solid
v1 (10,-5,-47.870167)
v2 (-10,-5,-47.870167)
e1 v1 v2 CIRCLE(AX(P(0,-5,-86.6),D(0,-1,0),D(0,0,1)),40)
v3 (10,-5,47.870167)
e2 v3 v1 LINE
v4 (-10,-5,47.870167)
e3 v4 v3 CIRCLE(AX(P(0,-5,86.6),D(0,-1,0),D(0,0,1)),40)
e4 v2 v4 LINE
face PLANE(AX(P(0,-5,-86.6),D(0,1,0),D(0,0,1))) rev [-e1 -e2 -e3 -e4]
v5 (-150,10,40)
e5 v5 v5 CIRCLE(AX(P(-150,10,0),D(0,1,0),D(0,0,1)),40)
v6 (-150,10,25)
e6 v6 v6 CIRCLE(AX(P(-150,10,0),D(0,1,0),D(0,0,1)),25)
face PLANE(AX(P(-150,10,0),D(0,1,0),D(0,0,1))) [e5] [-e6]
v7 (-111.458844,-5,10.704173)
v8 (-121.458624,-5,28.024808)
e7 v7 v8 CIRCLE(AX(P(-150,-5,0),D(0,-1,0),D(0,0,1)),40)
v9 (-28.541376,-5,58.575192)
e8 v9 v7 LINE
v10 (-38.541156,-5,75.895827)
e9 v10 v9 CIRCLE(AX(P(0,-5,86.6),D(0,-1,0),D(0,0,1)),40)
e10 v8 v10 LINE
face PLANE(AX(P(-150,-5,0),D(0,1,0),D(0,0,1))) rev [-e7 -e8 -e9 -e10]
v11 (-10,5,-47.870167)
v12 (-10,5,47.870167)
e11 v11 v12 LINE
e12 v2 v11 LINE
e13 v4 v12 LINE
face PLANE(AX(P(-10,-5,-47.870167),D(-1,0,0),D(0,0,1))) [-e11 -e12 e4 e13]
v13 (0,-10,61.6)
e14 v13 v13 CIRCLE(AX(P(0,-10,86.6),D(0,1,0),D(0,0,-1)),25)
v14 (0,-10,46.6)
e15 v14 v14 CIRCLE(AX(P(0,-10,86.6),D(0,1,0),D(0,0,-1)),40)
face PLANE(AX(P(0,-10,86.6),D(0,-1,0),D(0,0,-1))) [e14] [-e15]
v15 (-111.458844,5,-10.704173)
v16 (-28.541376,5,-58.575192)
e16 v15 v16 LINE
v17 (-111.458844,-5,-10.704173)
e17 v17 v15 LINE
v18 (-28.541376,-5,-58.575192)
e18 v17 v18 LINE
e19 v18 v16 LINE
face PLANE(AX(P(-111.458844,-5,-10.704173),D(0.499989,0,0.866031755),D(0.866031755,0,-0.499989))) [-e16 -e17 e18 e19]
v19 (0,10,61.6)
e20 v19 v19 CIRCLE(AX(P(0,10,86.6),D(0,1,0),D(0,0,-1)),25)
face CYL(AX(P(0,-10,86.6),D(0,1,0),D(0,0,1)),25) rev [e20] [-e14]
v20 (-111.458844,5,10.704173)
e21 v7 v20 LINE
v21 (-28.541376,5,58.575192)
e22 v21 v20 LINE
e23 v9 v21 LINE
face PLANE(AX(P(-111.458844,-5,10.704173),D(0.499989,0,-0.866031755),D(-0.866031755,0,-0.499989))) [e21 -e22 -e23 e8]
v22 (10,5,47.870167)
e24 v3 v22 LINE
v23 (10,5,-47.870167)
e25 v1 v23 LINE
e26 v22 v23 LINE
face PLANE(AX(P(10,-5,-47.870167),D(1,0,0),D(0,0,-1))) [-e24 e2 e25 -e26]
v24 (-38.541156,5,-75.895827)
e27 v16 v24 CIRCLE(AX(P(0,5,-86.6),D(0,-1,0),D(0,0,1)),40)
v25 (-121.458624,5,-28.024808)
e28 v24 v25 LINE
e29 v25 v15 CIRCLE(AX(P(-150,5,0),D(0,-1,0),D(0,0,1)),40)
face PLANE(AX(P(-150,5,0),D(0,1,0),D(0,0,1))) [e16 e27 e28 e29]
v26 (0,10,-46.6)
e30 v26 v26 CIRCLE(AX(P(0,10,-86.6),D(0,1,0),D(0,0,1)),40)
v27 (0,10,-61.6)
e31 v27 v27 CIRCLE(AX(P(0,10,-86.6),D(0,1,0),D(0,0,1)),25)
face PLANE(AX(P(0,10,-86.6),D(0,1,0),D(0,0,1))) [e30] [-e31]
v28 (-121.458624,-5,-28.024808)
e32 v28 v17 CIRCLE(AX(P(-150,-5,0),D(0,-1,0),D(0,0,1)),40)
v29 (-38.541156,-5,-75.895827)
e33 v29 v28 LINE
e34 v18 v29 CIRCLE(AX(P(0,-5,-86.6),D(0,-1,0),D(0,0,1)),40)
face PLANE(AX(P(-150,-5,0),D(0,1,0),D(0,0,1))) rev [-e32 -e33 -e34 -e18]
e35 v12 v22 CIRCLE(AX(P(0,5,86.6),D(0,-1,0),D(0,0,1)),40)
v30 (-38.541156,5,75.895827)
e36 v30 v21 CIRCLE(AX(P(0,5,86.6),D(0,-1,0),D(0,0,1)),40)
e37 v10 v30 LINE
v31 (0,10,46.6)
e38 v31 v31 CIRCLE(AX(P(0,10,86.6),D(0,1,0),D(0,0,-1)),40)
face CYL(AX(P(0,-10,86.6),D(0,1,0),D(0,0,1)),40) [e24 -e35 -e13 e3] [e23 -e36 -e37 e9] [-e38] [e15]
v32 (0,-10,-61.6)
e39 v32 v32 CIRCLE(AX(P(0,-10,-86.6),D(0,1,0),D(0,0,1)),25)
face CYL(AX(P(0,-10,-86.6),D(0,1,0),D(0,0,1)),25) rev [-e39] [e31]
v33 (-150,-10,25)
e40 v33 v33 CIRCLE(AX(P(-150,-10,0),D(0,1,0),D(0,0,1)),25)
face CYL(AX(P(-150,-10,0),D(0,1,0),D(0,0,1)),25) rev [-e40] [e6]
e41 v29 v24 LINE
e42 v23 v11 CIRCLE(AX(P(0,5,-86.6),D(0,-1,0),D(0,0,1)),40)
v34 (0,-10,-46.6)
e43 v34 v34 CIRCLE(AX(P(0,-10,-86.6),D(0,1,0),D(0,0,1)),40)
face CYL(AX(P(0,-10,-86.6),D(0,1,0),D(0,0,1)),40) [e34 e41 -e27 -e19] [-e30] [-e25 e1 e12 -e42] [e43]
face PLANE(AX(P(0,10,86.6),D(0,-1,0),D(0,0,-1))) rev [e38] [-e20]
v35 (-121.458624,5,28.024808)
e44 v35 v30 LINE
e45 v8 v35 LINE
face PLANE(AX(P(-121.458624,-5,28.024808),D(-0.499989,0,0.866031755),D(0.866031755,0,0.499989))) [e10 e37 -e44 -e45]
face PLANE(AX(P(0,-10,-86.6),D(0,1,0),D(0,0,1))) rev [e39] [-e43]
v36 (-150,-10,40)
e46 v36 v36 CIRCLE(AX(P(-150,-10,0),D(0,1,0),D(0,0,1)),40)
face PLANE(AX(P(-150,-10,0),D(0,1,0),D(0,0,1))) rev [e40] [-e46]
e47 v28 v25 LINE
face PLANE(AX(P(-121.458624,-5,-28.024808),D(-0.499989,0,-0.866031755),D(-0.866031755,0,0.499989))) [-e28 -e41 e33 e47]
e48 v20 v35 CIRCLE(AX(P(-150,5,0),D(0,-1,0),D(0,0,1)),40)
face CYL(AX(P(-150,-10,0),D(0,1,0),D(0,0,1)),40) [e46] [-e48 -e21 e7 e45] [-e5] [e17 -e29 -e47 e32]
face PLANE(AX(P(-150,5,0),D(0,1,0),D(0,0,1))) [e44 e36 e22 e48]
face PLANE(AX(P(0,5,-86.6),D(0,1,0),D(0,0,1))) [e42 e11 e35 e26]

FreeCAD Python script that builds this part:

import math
import FreeCAD as App
import Part
import Sketcher

V = App.Vector
Q = App.Units.Quantity

doc = App.newDocument("Part")
body = doc.addObject("PartDesign::Body", "Body")

sketch1 = body.newObject("Sketcher::SketchObject", "Sketch")
sketch1.AttachmentSupport = (doc.getObject("XZ_Plane"), [""])
sketch1.MapMode = "FlatFace"
sketch1.addGeometry(Part.Circle(V(-150, 0, 0), V(0, 0, 1), 40), False)
sketch1.addGeometry(Part.Circle(V(-150, 0, 0), V(0, 0, 1), 25), False)
sketch1.addConstraint(Sketcher.Constraint("Coincident", 1, 3, 0, 3))
sketch1.addConstraint(Sketcher.Constraint("PointOnObject", 0, 3, -1))
sketch1.addConstraint(Sketcher.Constraint("Diameter", 0, Q("80 mm")))
sketch1.addConstraint(Sketcher.Constraint("Diameter", 1, Q("50 mm")))
sketch1.addConstraint(Sketcher.Constraint("DistanceX", 0, 3, -1, 1, Q("150 mm")))
pad1 = body.newObject("PartDesign::Pad", "Pad")
pad1.Profile = sketch1
pad1.Type = "TwoLengths"
pad1.Length = 10
pad1.Length2 = 10
pad1.Reversed = True
body2 = doc.addObject("PartDesign::Body", "Body001")

sketch2 = body2.newObject("Sketcher::SketchObject", "Sketch001")
sketch2.AttachmentSupport = (doc.getObject("XZ_Plane001"), [""])
sketch2.MapMode = "FlatFace"
sketch2.addGeometry(Part.Circle(V(0, -87, 0), V(0, 0, 1), 40), False)
sketch2.addGeometry(Part.Circle(V(0, -87, 0), V(0, 0, 1), 25), False)
sketch2.addConstraint(Sketcher.Constraint("Coincident", 1, 3, 0, 3))
sketch2.addConstraint(Sketcher.Constraint("PointOnObject", 0, 3, -2))
sketch2.addConstraint(Sketcher.Constraint("Diameter", 0, Q("80 mm")))
sketch2.addConstraint(Sketcher.Constraint("Diameter", 1, Q("50 mm")))
sketch2.addConstraint(Sketcher.Constraint("DistanceY", 0, 3, -1, 1, Q("86.6 mm")))
pad2 = body2.newObject("PartDesign::Pad", "Pad001")
pad2.Profile = sketch2
pad2.Type = "TwoLengths"
pad2.Length = 10
pad2.Length2 = 10
pad2.Reversed = True
body3 = doc.addObject("PartDesign::Body", "Body002")

sketch3 = body3.newObject("Sketcher::SketchObject", "Sketch002")
sketch3.AttachmentSupport = (doc.getObject("XZ_Plane002"), [""])
sketch3.MapMode = "FlatFace"
sketch3.addGeometry(Part.Circle(V(0, 87, 0), V(0, 0, 1), 40), False)
sketch3.addGeometry(Part.Circle(V(0, 87, 0), V(0, 0, 1), 25), False)
sketch3.addConstraint(Sketcher.Constraint("Coincident", 1, 3, 0, 3))
sketch3.addConstraint(Sketcher.Constraint("PointOnObject", 0, 3, -2))
sketch3.addConstraint(Sketcher.Constraint("Diameter", 0, Q("80 mm")))
sketch3.addConstraint(Sketcher.Constraint("Diameter", 1, Q("50 mm")))
sketch3.addConstraint(Sketcher.Constraint("DistanceY", -1, 1, 0, 3, Q("86.6 mm")))
pad3 = body3.newObject("PartDesign::Pad", "Pad002")
pad3.Profile = sketch3
pad3.Type = "TwoLengths"
pad3.Length = 10
pad3.Length2 = 10
pad3.Reversed = True
body.AllowCompound = True
doc.recompute()

boolean = body.newObject("PartDesign::Boolean", "Boolean")
boolean.Type = "Fuse"
boolean.addObjects([body2])
doc.recompute()

boolean2 = body.newObject("PartDesign::Boolean", "Boolean001")
boolean2.Type = "Fuse"
boolean2.addObjects([body3])

sketch4 = body.newObject("Sketcher::SketchObject", "Sketch003")
sketch4.AttachmentSupport = (doc.getObject("XZ_Plane"), [""])
sketch4.MapMode = "FlatFace"
sketch4.addGeometry(Part.LineSegment(V(10, 48, 0), V(10, -48, 0)), False)
sketch4.addGeometry(Part.ArcOfCircle(Part.Circle(V(0, -87, 0), V(0, 0, 1), 40), math.radians(76), math.radians(104)), False)
sketch4.addGeometry(Part.LineSegment(V(-10, -48, 0), V(-10, 48, 0)), False)
sketch4.addGeometry(Part.ArcOfCircle(Part.Circle(V(0, 87, 0), V(0, 0, 1), 40), math.radians(-104), math.radians(-76)), False)
sketch4.addGeometry(Part.LineSegment(V(-111, -11, 0), V(-29, -59, 0)), False)
sketch4.addGeometry(Part.ArcOfCircle(Part.Circle(V(0, -87, 0), V(0, 0, 1), 40), math.radians(136), math.radians(164)), False)
sketch4.addGeometry(Part.LineSegment(V(-39, -76, 0), V(-121, -28, 0)), False)
sketch4.addGeometry(Part.ArcOfCircle(Part.Circle(V(-150, 0, 0), V(0, 0, 1), 40), math.radians(-44), math.radians(-16)), False)
sketch4.addGeometry(Part.LineSegment(V(-29, 59, 0), V(-111, 11, 0)), False)
sketch4.addGeometry(Part.ArcOfCircle(Part.Circle(V(-150, 0, 0), V(0, 0, 1), 40), math.radians(16), math.radians(44)), False)
sketch4.addGeometry(Part.LineSegment(V(-121, 28, 0), V(-39, 76, 0)), False)
sketch4.addGeometry(Part.ArcOfCircle(Part.Circle(V(0, 87, 0), V(0, 0, 1), 40), math.radians(-164), math.radians(-136)), False)
sketch4.addConstraint(Sketcher.Constraint("Coincident", 0, 2, 1, 1))
sketch4.addConstraint(Sketcher.Constraint("Coincident", 1, 2, 2, 1))
sketch4.addConstraint(Sketcher.Constraint("Coincident", 2, 2, 3, 1))
sketch4.addConstraint(Sketcher.Constraint("Coincident", 3, 2, 0, 1))
sketch4.addConstraint(Sketcher.Constraint("Coincident", 4, 2, 5, 1))
sketch4.addConstraint(Sketcher.Constraint("Coincident", 5, 2, 6, 1))
sketch4.addConstraint(Sketcher.Constraint("Coincident", 6, 2, 7, 1))
sketch4.addConstraint(Sketcher.Constraint("Coincident", 7, 2, 4, 1))
sketch4.addConstraint(Sketcher.Constraint("Coincident", 8, 2, 9, 1))
sketch4.addConstraint(Sketcher.Constraint("Coincident", 9, 2, 10, 1))
sketch4.addConstraint(Sketcher.Constraint("Coincident", 10, 2, 11, 1))
sketch4.addConstraint(Sketcher.Constraint("Coincident", 11, 2, 8, 1))
sketch4.addConstraint(Sketcher.Constraint("Vertical", 0))
sketch4.addConstraint(Sketcher.Constraint("Vertical", 2))
sketch4.addConstraint(Sketcher.Constraint("Coincident", 5, 3, 1, 3))
sketch4.addConstraint(Sketcher.Constraint("Coincident", 9, 3, 7, 3))
sketch4.addConstraint(Sketcher.Constraint("Coincident", 11, 3, 3, 3))
sketch4.addConstraint(Sketcher.Constraint("Equal", 1, 3))
sketch4.addConstraint(Sketcher.Constraint("Equal", 3, 5))
sketch4.addConstraint(Sketcher.Constraint("Equal", 5, 7))
sketch4.addConstraint(Sketcher.Constraint("Equal", 7, 9))
sketch4.addConstraint(Sketcher.Constraint("Equal", 9, 11))
sketch4.addConstraint(Sketcher.Constraint("Symmetric", 1, 3, 3, 3, -1, 1))
sketch4.addConstraint(Sketcher.Constraint("Symmetric", 0, 2, 1, 2, -2))
sketch4.addConstraint(Sketcher.Constraint("Symmetric", 7, 2, 8, 2, -1))
sketch4.addConstraint(Sketcher.Constraint("Parallel", 4, 6))
sketch4.addConstraint(Sketcher.Constraint("Parallel", 8, 10))
sketch4.addConstraint(Sketcher.Constraint("Vertical", 6, 2, 9, 2))
sketch4.addConstraint(Sketcher.Constraint("Vertical", 5, 2, 10, 2))
sketch4.addConstraint(Sketcher.Constraint("Equal", 4, 6))
sketch4.addConstraint(Sketcher.Constraint("Radius", 1, Q("40 mm")))
sketch4.addConstraint(Sketcher.Constraint("DistanceX", 7, 3, -1, 1, Q("150 mm")))
sketch4.addConstraint(Sketcher.Constraint("DistanceX", -1, 1, 0, 2, Q("10 mm")))
sketch4.addConstraint(Sketcher.Constraint("DistanceY", 1, 3, -1, 1, Q("86.6 mm")))
sketch4.addConstraint(Sketcher.Constraint("DistanceY", 4, 2, -1, 1, Q("58.575192 mm")))
sketch4.addConstraint(Sketcher.Constraint("DistanceX", 5, 2, 4, 2, Q("9.99978 mm")))
pad4 = body.newObject("PartDesign::Pad", "Pad003")
pad4.Profile = sketch4
pad4.Type = "TwoLengths"
pad4.Length = 5
pad4.Length2 = 5
pad4.Reversed = True

doc.recompute()
